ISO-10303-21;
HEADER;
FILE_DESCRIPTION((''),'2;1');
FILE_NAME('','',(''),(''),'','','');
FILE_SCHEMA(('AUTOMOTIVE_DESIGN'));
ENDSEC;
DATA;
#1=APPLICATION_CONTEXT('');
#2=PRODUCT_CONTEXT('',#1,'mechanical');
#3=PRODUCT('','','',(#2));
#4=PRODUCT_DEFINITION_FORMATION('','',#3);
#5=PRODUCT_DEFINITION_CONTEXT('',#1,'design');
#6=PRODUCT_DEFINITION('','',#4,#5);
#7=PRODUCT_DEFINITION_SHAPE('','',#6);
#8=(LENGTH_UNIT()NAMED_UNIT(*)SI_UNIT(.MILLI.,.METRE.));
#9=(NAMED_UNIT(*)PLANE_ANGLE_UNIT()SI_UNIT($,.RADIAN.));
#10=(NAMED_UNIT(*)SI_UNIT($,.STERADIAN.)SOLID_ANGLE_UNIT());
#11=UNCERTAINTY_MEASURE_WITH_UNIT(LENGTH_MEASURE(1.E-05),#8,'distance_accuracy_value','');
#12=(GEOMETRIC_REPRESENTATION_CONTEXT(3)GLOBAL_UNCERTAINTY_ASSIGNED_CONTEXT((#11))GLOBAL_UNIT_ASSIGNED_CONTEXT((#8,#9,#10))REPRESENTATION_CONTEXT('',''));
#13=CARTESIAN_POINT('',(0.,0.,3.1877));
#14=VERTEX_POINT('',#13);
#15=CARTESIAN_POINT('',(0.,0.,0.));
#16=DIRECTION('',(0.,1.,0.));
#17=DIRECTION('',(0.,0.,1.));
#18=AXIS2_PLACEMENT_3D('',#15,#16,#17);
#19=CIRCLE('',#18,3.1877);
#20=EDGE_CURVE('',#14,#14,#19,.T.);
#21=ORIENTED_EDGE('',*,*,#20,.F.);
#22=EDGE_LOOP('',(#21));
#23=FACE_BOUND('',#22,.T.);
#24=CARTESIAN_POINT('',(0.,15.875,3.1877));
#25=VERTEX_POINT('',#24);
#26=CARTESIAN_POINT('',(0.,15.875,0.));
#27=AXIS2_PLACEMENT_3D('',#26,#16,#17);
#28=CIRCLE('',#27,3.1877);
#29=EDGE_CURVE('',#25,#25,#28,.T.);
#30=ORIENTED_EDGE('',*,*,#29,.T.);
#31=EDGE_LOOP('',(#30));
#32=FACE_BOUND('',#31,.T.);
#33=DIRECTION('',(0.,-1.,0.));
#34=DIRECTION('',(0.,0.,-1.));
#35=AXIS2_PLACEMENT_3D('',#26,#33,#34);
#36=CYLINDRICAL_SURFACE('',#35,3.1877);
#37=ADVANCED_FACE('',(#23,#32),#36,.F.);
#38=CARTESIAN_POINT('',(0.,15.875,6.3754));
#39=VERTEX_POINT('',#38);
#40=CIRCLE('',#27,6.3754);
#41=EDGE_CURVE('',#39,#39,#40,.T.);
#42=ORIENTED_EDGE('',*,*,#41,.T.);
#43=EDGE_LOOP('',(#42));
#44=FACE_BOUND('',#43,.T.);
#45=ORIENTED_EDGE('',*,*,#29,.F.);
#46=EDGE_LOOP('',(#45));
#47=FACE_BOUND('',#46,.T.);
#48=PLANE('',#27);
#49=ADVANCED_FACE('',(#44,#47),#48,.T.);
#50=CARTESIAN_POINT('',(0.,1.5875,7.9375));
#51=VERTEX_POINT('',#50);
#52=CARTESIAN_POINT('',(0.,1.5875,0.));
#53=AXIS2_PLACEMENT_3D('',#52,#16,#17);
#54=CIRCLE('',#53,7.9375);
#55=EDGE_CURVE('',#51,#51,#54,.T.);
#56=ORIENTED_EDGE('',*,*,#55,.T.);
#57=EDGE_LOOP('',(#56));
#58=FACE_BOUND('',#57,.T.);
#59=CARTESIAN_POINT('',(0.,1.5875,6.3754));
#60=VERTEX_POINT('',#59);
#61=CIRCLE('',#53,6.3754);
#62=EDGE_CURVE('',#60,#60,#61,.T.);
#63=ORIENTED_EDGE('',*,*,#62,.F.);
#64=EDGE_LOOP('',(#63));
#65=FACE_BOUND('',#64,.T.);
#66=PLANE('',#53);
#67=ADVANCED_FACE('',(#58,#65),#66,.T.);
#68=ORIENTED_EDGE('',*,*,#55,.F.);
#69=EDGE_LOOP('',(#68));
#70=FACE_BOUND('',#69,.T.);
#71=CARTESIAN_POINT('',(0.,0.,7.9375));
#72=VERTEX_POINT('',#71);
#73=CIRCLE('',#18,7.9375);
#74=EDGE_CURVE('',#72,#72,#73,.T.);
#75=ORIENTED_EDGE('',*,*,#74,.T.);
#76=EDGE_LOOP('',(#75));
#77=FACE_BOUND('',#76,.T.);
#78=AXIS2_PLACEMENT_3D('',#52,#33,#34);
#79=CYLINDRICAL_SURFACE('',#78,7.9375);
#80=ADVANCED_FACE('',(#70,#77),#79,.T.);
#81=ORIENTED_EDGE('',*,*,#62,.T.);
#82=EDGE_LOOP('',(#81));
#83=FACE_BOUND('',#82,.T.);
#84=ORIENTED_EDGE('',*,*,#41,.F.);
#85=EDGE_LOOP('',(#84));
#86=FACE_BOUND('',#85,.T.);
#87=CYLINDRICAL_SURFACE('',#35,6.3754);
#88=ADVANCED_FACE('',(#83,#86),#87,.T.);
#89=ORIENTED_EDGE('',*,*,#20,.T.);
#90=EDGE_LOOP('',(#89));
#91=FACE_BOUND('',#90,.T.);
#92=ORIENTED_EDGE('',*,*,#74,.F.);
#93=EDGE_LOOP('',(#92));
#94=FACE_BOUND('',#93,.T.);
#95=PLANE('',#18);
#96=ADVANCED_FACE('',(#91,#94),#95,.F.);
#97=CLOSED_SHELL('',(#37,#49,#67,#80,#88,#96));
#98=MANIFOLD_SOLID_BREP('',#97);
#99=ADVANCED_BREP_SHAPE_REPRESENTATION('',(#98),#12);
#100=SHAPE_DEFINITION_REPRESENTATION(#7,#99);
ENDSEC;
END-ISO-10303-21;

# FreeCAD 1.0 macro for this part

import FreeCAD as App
import Part
import Sketcher

V = App.Vector
Q = App.Units.Quantity

doc = App.newDocument("Part")
body = doc.addObject("PartDesign::Body", "Body")

# Sketch on XZ plane
sketch1 = body.newObject("Sketcher::SketchObject", "Sketch")
sketch1.AttachmentSupport = (doc.getObject("XZ_Plane"), [""])
sketch1.MapMode = "FlatFace"
sketch1.addGeometry(Part.Circle(V(0, 0, 0), V(0, 0, 1), 6.4), False)
sketch1.addGeometry(Part.Circle(V(0, 0, 0), V(0, 0, 1), 3.2), False)
sketch1.addConstraint(Sketcher.Constraint("Coincident", 0, 3, -1, 1))
sketch1.addConstraint(Sketcher.Constraint("Coincident", 1, 3, -1, 1))
sketch1.addConstraint(Sketcher.Constraint("Diameter", 0, Q("0.502 in")))
sketch1.addConstraint(Sketcher.Constraint("Diameter", 1, Q("0.251 in")))
pad1 = body.newObject("PartDesign::Pad", "Pad")
pad1.Profile = sketch1
pad1.Length = Q("0.625 in")
pad1.Reversed = True

# Sketch on XZ plane
sketch2 = body.newObject("Sketcher::SketchObject", "Sketch001")
sketch2.AttachmentSupport = (doc.getObject("XZ_Plane"), [""])
sketch2.MapMode = "FlatFace"
sketch2.addGeometry(Part.Circle(V(0, 0, 0), V(0, 0, 1), 8), False)
sketch2.addGeometry(Part.Circle(V(0, 0, 0), V(0, 0, 1), 6), False)
sketch2.addConstraint(Sketcher.Constraint("Coincident", 0, 3, -1, 1))
sketch2.addConstraint(Sketcher.Constraint("Coincident", 1, 3, -1, 1))
sketch2.addConstraint(Sketcher.Constraint("Diameter", 0, Q("0.625 in")))
sketch2.addConstraint(Sketcher.Constraint("Diameter", 1, Q("0.502 in")))
pad2 = body.newObject("PartDesign::Pad", "Pad001")
pad2.Profile = sketch2
pad2.Length = Q("0.0625 in")
pad2.Reversed = True

doc.recompute()
